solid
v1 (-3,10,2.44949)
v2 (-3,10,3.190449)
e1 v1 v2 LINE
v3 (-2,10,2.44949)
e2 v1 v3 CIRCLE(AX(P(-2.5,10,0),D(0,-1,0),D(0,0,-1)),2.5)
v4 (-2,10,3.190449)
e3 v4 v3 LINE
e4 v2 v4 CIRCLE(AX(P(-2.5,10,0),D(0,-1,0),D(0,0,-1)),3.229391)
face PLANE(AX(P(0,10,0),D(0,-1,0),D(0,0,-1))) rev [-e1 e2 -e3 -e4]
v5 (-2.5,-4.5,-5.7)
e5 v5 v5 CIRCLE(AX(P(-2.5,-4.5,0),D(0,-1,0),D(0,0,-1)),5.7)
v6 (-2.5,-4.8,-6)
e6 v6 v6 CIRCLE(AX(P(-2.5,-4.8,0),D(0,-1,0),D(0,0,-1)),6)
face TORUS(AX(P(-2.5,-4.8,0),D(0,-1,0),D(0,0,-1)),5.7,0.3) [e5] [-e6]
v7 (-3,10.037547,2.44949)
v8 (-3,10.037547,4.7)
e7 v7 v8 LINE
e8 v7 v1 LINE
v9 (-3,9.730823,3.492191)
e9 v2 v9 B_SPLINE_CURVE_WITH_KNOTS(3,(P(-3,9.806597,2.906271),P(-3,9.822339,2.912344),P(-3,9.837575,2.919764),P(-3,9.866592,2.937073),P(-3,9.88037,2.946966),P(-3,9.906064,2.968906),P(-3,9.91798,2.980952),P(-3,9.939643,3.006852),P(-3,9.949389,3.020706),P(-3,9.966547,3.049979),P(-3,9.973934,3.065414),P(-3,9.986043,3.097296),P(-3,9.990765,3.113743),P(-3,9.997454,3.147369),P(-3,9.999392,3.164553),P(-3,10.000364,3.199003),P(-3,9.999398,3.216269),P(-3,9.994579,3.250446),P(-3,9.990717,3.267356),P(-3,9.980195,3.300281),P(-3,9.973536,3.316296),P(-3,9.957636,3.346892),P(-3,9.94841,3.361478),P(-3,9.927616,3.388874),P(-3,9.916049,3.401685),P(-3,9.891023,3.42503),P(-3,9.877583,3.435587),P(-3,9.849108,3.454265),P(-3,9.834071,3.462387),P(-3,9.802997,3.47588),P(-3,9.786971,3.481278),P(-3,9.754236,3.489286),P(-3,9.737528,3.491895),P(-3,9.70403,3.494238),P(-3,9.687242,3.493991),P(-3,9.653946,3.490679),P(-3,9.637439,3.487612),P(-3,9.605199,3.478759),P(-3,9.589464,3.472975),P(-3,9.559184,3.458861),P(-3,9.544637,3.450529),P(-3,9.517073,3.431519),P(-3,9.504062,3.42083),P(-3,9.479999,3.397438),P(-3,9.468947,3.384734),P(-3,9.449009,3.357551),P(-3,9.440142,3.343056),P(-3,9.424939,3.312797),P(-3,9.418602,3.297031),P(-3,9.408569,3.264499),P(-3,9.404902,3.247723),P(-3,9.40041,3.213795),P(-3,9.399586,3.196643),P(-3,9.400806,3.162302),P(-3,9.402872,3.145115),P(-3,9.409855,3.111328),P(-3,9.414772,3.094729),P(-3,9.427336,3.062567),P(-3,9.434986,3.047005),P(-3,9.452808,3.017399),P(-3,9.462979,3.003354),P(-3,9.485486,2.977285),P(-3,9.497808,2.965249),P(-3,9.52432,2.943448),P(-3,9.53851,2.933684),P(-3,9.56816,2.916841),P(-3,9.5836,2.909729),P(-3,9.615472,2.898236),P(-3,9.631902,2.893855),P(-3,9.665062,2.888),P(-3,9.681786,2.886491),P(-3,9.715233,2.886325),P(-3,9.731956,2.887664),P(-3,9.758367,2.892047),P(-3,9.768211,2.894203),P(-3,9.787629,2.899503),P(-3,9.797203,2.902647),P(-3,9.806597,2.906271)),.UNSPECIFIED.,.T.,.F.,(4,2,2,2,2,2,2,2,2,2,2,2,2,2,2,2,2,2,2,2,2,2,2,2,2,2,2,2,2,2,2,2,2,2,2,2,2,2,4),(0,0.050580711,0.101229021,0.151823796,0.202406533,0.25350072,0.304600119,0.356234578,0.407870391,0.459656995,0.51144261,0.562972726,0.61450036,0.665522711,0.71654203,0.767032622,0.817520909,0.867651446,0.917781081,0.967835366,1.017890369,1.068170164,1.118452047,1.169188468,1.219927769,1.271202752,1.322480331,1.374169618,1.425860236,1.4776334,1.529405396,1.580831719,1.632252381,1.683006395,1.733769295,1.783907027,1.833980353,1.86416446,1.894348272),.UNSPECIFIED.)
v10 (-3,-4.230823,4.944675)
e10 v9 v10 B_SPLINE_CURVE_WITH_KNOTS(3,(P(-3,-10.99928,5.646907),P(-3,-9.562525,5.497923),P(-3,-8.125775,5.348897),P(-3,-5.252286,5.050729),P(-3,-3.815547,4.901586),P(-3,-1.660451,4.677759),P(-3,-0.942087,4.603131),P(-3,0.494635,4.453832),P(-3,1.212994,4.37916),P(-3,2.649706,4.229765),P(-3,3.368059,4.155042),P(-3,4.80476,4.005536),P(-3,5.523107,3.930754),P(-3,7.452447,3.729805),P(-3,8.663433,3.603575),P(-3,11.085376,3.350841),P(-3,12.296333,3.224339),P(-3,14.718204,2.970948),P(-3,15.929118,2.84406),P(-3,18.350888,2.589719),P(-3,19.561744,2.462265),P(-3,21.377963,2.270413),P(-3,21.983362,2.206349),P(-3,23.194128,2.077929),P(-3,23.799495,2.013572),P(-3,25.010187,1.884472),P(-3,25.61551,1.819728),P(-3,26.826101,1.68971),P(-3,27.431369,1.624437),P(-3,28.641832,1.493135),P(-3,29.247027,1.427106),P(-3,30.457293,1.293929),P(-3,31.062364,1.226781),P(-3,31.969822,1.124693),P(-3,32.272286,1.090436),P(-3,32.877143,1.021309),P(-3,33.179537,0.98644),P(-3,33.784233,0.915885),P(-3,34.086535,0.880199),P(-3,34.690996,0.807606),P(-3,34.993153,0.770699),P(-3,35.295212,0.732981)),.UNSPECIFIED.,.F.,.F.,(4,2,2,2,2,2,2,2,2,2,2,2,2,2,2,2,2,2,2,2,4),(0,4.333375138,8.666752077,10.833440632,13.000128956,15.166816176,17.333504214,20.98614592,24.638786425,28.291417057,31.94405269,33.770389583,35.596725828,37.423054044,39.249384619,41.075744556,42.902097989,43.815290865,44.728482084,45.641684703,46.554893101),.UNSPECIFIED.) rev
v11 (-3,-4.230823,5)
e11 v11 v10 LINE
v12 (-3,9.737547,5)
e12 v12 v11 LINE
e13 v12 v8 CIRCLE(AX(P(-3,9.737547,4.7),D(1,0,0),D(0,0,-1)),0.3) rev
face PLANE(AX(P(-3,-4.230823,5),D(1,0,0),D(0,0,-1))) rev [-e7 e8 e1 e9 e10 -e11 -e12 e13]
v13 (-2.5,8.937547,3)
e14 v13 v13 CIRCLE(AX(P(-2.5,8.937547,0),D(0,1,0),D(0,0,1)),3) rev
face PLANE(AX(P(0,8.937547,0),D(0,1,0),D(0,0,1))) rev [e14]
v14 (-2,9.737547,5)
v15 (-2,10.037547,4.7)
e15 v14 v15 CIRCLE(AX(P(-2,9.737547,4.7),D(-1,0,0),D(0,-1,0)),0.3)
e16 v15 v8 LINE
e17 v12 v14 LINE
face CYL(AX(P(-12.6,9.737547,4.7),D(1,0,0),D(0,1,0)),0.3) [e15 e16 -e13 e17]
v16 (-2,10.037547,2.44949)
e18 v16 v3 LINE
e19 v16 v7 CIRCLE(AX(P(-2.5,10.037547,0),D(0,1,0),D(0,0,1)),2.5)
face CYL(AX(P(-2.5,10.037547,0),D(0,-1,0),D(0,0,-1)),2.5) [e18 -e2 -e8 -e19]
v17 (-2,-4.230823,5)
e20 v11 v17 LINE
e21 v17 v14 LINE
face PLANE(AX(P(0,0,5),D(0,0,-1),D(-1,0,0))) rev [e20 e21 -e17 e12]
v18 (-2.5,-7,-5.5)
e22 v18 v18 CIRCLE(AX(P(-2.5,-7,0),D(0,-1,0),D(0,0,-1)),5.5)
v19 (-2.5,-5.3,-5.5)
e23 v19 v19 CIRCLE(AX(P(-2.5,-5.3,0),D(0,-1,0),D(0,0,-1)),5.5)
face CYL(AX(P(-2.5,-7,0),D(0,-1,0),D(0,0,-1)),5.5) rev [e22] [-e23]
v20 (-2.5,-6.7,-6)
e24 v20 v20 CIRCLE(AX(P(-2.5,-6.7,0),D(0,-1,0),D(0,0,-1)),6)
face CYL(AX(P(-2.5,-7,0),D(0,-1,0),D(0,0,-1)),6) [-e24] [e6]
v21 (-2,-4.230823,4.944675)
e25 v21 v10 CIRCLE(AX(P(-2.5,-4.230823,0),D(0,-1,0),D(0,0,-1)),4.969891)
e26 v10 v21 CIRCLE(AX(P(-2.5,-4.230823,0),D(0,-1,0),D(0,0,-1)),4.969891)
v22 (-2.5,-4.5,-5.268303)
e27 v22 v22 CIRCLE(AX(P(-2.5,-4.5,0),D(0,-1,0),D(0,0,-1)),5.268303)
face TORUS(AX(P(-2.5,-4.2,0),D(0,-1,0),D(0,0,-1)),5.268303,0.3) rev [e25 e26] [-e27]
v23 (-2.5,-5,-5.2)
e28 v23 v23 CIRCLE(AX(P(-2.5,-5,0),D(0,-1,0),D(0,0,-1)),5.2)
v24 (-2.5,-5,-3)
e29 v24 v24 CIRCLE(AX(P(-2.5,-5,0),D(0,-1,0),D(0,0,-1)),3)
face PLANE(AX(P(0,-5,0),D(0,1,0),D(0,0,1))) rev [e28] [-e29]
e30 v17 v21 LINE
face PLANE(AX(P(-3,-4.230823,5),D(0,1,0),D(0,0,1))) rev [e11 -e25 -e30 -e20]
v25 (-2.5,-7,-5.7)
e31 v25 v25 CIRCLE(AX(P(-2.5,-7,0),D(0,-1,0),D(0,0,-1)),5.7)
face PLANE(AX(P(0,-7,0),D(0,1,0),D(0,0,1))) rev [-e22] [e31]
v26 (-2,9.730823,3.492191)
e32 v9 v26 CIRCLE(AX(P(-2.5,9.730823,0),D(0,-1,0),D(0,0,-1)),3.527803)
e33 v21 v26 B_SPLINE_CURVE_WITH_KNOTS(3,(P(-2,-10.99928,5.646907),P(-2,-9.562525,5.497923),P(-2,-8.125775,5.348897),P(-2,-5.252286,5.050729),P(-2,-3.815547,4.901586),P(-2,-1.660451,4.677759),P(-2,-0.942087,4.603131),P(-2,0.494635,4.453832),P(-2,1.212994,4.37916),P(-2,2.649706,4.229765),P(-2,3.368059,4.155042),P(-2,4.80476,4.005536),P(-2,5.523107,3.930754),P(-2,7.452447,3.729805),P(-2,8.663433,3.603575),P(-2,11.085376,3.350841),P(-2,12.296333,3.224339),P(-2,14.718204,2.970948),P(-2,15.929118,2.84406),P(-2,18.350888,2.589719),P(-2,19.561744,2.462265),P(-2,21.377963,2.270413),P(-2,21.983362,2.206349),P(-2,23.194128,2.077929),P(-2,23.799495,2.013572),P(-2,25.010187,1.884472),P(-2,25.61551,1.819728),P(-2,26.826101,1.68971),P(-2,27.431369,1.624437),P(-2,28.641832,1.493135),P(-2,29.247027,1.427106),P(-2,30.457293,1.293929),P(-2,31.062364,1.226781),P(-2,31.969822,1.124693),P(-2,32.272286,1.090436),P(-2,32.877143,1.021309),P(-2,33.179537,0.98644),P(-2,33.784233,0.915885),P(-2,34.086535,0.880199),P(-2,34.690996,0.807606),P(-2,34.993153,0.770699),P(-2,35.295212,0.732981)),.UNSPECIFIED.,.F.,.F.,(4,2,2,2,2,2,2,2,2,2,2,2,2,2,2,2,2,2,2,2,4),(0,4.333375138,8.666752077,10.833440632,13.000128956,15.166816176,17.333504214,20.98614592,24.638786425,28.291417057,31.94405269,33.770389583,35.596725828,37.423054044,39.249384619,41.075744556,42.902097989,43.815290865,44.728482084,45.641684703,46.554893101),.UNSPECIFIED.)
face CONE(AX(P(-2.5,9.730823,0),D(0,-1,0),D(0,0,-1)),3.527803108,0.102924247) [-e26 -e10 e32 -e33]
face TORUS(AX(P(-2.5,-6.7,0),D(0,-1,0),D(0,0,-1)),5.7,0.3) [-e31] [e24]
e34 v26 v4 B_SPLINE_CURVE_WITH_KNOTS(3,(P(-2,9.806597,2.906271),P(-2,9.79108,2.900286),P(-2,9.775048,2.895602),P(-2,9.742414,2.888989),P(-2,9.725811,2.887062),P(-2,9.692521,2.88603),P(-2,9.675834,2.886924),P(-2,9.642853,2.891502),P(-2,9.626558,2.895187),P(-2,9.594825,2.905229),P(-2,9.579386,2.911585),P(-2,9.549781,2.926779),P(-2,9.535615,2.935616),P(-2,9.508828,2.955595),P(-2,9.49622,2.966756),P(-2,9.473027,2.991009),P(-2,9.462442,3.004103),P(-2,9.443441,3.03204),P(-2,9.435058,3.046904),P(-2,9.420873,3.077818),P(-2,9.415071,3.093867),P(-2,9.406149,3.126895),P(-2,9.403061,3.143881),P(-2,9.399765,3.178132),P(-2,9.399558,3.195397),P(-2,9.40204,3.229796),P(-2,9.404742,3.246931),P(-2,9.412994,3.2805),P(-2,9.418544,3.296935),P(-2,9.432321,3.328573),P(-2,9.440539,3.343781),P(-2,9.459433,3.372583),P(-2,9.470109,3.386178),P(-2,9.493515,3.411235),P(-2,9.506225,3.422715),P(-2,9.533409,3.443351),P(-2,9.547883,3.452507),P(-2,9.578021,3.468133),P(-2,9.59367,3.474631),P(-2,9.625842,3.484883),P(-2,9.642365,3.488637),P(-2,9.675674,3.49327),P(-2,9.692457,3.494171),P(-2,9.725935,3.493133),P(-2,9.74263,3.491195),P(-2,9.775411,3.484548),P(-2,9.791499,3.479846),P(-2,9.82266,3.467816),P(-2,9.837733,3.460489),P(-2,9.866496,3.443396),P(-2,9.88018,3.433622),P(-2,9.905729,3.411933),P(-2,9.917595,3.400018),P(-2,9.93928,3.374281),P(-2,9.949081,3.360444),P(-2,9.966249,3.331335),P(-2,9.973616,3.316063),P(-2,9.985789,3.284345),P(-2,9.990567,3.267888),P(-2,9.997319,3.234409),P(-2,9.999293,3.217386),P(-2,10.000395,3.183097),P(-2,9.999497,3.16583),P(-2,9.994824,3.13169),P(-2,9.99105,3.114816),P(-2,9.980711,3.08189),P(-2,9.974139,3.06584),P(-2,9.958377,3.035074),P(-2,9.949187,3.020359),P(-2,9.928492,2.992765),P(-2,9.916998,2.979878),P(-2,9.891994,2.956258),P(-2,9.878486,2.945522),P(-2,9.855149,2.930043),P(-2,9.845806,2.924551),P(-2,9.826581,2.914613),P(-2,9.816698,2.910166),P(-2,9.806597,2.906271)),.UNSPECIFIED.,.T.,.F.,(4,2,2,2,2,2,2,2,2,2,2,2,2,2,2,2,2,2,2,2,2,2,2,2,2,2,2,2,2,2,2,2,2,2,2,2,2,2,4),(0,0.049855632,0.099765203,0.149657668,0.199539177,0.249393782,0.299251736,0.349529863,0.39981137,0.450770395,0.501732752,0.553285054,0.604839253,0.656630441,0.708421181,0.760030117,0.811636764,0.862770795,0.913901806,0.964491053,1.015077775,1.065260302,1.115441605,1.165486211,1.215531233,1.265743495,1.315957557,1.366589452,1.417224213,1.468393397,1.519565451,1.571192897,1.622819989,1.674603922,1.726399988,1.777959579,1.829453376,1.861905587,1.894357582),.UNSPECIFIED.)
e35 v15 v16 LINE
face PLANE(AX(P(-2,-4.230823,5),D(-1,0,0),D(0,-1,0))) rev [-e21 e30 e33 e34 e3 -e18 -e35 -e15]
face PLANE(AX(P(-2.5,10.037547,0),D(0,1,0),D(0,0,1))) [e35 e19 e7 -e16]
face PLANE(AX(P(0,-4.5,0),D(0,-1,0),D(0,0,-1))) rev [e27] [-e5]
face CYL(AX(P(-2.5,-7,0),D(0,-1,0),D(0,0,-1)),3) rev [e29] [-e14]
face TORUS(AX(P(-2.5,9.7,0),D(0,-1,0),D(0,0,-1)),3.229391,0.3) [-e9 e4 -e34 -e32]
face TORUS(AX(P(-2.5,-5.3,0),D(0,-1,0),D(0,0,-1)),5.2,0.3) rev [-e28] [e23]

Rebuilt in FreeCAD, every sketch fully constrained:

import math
import FreeCAD as App
import Part
import Sketcher
from FreeCAD import Vector
Q = App.Units.Quantity


def add_polygon(sketch, points):
    """Adds a closed chain of lines whose ends are joined by coincident constraints."""
    first, n = sketch.GeometryCount, len(points)
    for a, b in zip(points, points[1:] + points[:1]):
        sketch.addGeometry(Part.LineSegment(App.Vector(*a, 0), App.Vector(*b, 0)), False)
    for i in range(n):
        sketch.addConstraint(Sketcher.Constraint("Coincident", first + i, 2, first + (i + 1) % n, 1))

doc = App.newDocument("Part")
body = doc.addObject("PartDesign::Body", "Body")

sketch1 = body.newObject("Sketcher::SketchObject", "Sketch")
sketch1.AttachmentSupport = (doc.getObject("XY_Plane"), [""])
sketch1.MapMode = "FlatFace"
sketch1.addGeometry([
    Part.ArcOfCircle(Part.Circle(Vector(0.729391, 9.7, 0), Vector(0, 0, 1), 0.3), math.radians(5.897125), math.radians(90)),
    Part.LineSegment(Vector(0.729391, 10, 0), Vector(0, 10, 0)),
    Part.LineSegment(Vector(0, 10, 0), Vector(0, 9.437547, 0)),
    Part.LineSegment(Vector(0, 9.437547, 0), Vector(-2.5, 9.437547, 0)),
    Part.LineSegment(Vector(-2.5, 9.437547, 0), Vector(-2.5, 8.937547, 0)),
    Part.LineSegment(Vector(-2.5, 8.937547, 0), Vector(0.2, 8.937547, 0)),
    Part.ArcOfCircle(Part.Circle(Vector(0.2, 8.637547, 0), Vector(0, 0, 1), 0.3), math.radians(0), math.radians(90)),
    Part.LineSegment(Vector(0.5, 8.637547, 0), Vector(0.5, -5, 0)),
    Part.LineSegment(Vector(0.5, -5, 0), Vector(2.7, -5, 0)),
    Part.ArcOfCircle(Part.Circle(Vector(2.7, -5.3, 0), Vector(0, 0, 1), 0.3), math.radians(0), math.radians(90)),
    Part.LineSegment(Vector(3, -5.3, 0), Vector(3, -7, 0)),
    Part.LineSegment(Vector(3, -7, 0), Vector(3.2, -7, 0)),
    Part.ArcOfCircle(Part.Circle(Vector(3.2, -6.7, 0), Vector(0, 0, 1), 0.3), math.radians(-90), math.radians(0)),
    Part.LineSegment(Vector(3.5, -6.7, 0), Vector(3.5, -4.8, 0)),
    Part.ArcOfCircle(Part.Circle(Vector(3.2, -4.8, 0), Vector(0, 0, 1), 0.3), math.radians(0), math.radians(90)),
    Part.LineSegment(Vector(3.2, -4.5, 0), Vector(2.768303, -4.5, 0)),
    Part.ArcOfCircle(Part.Circle(Vector(2.768303, -4.2, 0), Vector(0, 0, 1), 0.3), math.radians(-174.102875), math.radians(-90)),
    Part.LineSegment(Vector(2.469891, -4.230823, 0), Vector(1.027803, 9.730823, 0)),
], False)
sketch1.addGeometry(Part.LineSegment(Vector(-2.5, -7, 0), Vector(-2.5, 10, 0)), True)
sketch1.addConstraint([
    Sketcher.Constraint("Tangent", 0, 2, 1, 1),
    Sketcher.Constraint("Coincident", 1, 2, 2, 1),
    Sketcher.Constraint("Coincident", 2, 2, 3, 1),
    Sketcher.Constraint("Coincident", 3, 2, 4, 1),
    Sketcher.Constraint("Coincident", 4, 2, 5, 1),
    Sketcher.Constraint("Tangent", 5, 2, 6, 2),
    Sketcher.Constraint("Tangent", 6, 1, 7, 1),
    Sketcher.Constraint("Coincident", 7, 2, 8, 1),
    Sketcher.Constraint("Tangent", 8, 2, 9, 2),
    Sketcher.Constraint("Tangent", 9, 1, 10, 1),
    Sketcher.Constraint("Coincident", 10, 2, 11, 1),
    Sketcher.Constraint("Tangent", 11, 2, 12, 1),
    Sketcher.Constraint("Tangent", 12, 2, 13, 1),
    Sketcher.Constraint("Tangent", 13, 2, 14, 1),
    Sketcher.Constraint("Tangent", 14, 2, 15, 1),
    Sketcher.Constraint("Tangent", 15, 2, 16, 2),
    Sketcher.Constraint("Tangent", 16, 1, 17, 1),
    Sketcher.Constraint("Tangent", 17, 2, 0, 1),
    Sketcher.Constraint("Horizontal", 1),
    Sketcher.Constraint("Vertical", 2),
    Sketcher.Constraint("Horizontal", 3),
    Sketcher.Constraint("Vertical", 4),
    Sketcher.Constraint("Horizontal", 5),
    Sketcher.Constraint("Vertical", 7),
    Sketcher.Constraint("Horizontal", 8),
    Sketcher.Constraint("Vertical", 10),
    Sketcher.Constraint("Horizontal", 11),
    Sketcher.Constraint("Vertical", 13),
    Sketcher.Constraint("Horizontal", 15),
    Sketcher.Constraint("Vertical", 18),
    Sketcher.Constraint("Equal", 0, 6),
    Sketcher.Constraint("Equal", 6, 9),
    Sketcher.Constraint("Equal", 9, 12),
    Sketcher.Constraint("Equal", 12, 14),
    Sketcher.Constraint("Equal", 14, 16),
    Sketcher.Constraint("PointOnObject", 1, 2, -2),
    Sketcher.Constraint("Horizontal", 11, 2, 18, 1),
    Sketcher.Constraint("Horizontal", 1, 2, 18, 2),
    Sketcher.Constraint("Vertical", 4, 2, 18, 1),
    Sketcher.Constraint("Radius", 0, Q("0.3 mm")),
    Sketcher.Constraint("DistanceY", 18, 1, 18, 2, Q("17 mm")),
    Sketcher.Constraint("DistanceX", 3, 2, 3, 1, Q("2.5 mm")),
    Sketcher.Constraint("DistanceX", 5, 1, 5, 2, Q("2.7 mm")),
    Sketcher.Constraint("DistanceX", 8, 1, 8, 2, Q("2.2 mm")),
    Sketcher.Constraint("DistanceX", 11, 1, 11, 2, Q("0.2 mm")),
    Sketcher.Constraint("DistanceY", 4, 2, 4, 1, Q("0.5 mm")),
    Sketcher.Constraint("DistanceY", 10, 2, 10, 1, Q("1.7 mm")),
    Sketcher.Constraint("DistanceY", 13, 1, 13, 2, Q("1.9 mm")),
    Sketcher.Constraint("DistanceY", -1, 1, 0, 2, Q("10 mm")),
    Sketcher.Constraint("DistanceX", 1, 2, 1, 1, Q("0.729391 mm")),
    Sketcher.Constraint("DistanceX", 15, 2, 15, 1, Q("0.431697 mm")),
    Sketcher.Constraint("DistanceY", 2, 2, 2, 1, Q("0.562453 mm")),
])
revolution = body.newObject("PartDesign::Revolution", "Revolution")
revolution.Profile = sketch1
revolution.ReferenceAxis = (sketch1, ["Axis0"])
revolution.Angle = 360

sketch2 = body.newObject("Sketcher::SketchObject", "Sketch001")
sketch2.AttachmentSupport = (doc.getObject("XY_Plane"), [""])
sketch2.MapMode = "FlatFace"
add_polygon(sketch2, [(-3, 10), (-3, -4.230823), (-2, -4.230823), (-2, 10)])
sketch2.addConstraint([
    Sketcher.Constraint("Vertical", 0),
    Sketcher.Constraint("Horizontal", 1),
    Sketcher.Constraint("Vertical", 2),
    Sketcher.Constraint("Horizontal", 3),
    Sketcher.Constraint("DistanceX", 1, 1, 1, 2, Q("1 mm")),
    Sketcher.Constraint("DistanceX", 0, 2, -1, 1, Q("3 mm")),
    Sketcher.Constraint("DistanceY", -1, 1, 2, 2, Q("10 mm")),
    Sketcher.Constraint("DistanceY", 0, 2, 0, 1, Q("14.230823 mm")),
])
pad1 = body.newObject("PartDesign::Pad", "Pad")
pad1.Profile = sketch2
pad1.Length = 5

sketch3 = body.newObject("Sketcher::SketchObject", "Sketch002")
sketch3.AttachmentSupport = (doc.getObject("XZ_Plane"), [""])
sketch3.MapMode = "FlatFace"
sketch3.AttachmentOffset = App.Placement(Vector(0, 0, -9.437547), App.Rotation())
sketch3.addGeometry([
    Part.LineSegment(Vector(-3, 4.944675, 0), Vector(-2, 5, 0)),
    Part.LineSegment(Vector(-2, 5, 0), Vector(-2, 2.44949, 0)),
    Part.ArcOfCircle(Part.Circle(Vector(-2.5, 0, 0), Vector(0, 0, 1), 2.5), math.radians(101.536959), math.radians(438.463041)),
    Part.LineSegment(Vector(-3, 2.44949, 0), Vector(-3, 4.944675, 0)),
], False)
sketch3.addConstraint([
    Sketcher.Constraint("Coincident", 0, 2, 1, 1),
    Sketcher.Constraint("Coincident", 1, 2, 2, 2),
    Sketcher.Constraint("Coincident", 2, 1, 3, 1),
    Sketcher.Constraint("Coincident", 3, 2, 0, 1),
    Sketcher.Constraint("Vertical", 1),
    Sketcher.Constraint("Vertical", 3),
    Sketcher.Constraint("PointOnObject", 2, 3, -1),
    Sketcher.Constraint("Horizontal", 1, 2, 2, 1),
    Sketcher.Constraint("Radius", 2, Q("2.5 mm")),
    Sketcher.Constraint("DistanceX", 0, 2, -1, 1, Q("2 mm")),
    Sketcher.Constraint("DistanceY", -1, 1, 0, 2, Q("5 mm")),
    Sketcher.Constraint("DistanceX", 2, 1, -1, 1, Q("3 mm")),
    Sketcher.Constraint("Distance", 0, Q("1.001529 mm")),
])
pad2 = body.newObject("PartDesign::Pad", "Pad001")
pad2.Profile = sketch3
pad2.Length = 0.6
pad2.Reversed = True

sketch4 = body.newObject("Sketcher::SketchObject", "Sketch003")
sketch4.AttachmentSupport = (doc.getObject("YZ_Plane"), [""])
sketch4.MapMode = "FlatFace"
sketch4.AttachmentOffset = App.Placement(Vector(0, 0, -2), App.Rotation())
sketch4.addGeometry([
    Part.LineSegment(Vector(10.037547, 5, 0), Vector(9.737547, 5, 0)),
    Part.ArcOfCircle(Part.Circle(Vector(9.737547, 4.7, 0), Vector(0, 0, 1), 0.3), math.radians(0), math.radians(90)),
    Part.LineSegment(Vector(10.037547, 4.7, 0), Vector(10.037547, 5, 0)),
], False)
sketch4.addConstraint([
    Sketcher.Constraint("Tangent", 0, 2, 1, 2),
    Sketcher.Constraint("Tangent", 1, 1, 2, 1),
    Sketcher.Constraint("Coincident", 2, 2, 0, 1),
    Sketcher.Constraint("Horizontal", 0),
    Sketcher.Constraint("Vertical", 2),
    Sketcher.Constraint("Radius", 1, Q("0.3 mm")),
    Sketcher.Constraint("DistanceY", -1, 1, 0, 2, Q("5 mm")),
    Sketcher.Constraint("DistanceX", -1, 1, 1, 3, Q("9.737547 mm")),
])
pocket1 = body.newObject("PartDesign::Pocket", "Pocket")
pocket1.Profile = sketch4
pocket1.Length = 10.6

sketch5 = body.newObject("Sketcher::SketchObject", "Sketch004")
sketch5.AttachmentSupport = (doc.getObject("XZ_Plane"), [""])
sketch5.MapMode = "FlatFace"
sketch5.AttachmentOffset = App.Placement(Vector(0, 0, 5), App.Rotation())
sketch5.addGeometry(Part.Circle(Vector(-2.5, 0, 0), Vector(0, 0, 1), 3), False)
sketch5.addConstraint([
    Sketcher.Constraint("PointOnObject", 0, 3, -1),
    Sketcher.Constraint("Diameter", 0, Q("6 mm")),
    Sketcher.Constraint("DistanceX", 0, 3, -1, 1, Q("2.5 mm")),
])
pocket2 = body.newObject("PartDesign::Pocket", "Pocket001")
pocket2.Profile = sketch5
pocket2.Length = 13.937547

doc.recompute()
